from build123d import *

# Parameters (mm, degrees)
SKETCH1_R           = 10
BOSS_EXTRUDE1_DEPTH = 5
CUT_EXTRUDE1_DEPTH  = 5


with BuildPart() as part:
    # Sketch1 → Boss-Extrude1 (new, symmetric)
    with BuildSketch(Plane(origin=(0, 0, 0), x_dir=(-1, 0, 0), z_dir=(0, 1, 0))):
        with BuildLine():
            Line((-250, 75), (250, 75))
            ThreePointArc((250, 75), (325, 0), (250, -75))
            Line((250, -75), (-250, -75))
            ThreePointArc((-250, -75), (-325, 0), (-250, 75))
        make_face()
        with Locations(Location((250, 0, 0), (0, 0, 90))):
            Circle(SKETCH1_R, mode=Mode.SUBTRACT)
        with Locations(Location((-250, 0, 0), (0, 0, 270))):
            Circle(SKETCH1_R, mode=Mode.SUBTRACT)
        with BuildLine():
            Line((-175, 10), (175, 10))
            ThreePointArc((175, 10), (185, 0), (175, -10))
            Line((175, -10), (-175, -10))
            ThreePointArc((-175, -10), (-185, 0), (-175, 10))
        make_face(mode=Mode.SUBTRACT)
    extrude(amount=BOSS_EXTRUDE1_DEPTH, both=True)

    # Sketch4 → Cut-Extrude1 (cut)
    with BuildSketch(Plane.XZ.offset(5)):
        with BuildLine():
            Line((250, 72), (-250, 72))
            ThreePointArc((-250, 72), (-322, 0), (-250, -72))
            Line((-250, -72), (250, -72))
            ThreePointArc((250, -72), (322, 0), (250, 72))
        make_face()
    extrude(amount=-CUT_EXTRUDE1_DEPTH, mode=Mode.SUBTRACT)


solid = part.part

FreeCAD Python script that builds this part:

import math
import FreeCAD as App
import Part
import Sketcher
from FreeCAD import Vector

doc = App.newDocument("Part")
body = doc.addObject("PartDesign::Body", "Body")

# Sketch on XZ plane
sketch1 = body.newObject("Sketcher::SketchObject", "Sketch")
sketch1.AttachmentSupport = (doc.getObject("XZ_Plane"), [""])
sketch1.MapMode = "FlatFace"
sketch1.addGeometry([
    Part.LineSegment(Vector(-250, 75, 0), Vector(250, 75, 0)),  # 0
    Part.ArcOfCircle(Part.Circle(Vector(250, 0, 0), Vector(0, 0, 1), 75), math.radians(-90), math.radians(90)),  # 1
    Part.LineSegment(Vector(250, -75, 0), Vector(-250, -75, 0)),  # 2
    Part.ArcOfCircle(Part.Circle(Vector(-250, 0, 0), Vector(0, 0, 1), 75), math.radians(90), math.radians(270)),  # 3
    Part.Circle(Vector(-250, 0, 0), Vector(0, 0, 1), 10),  # 4
    Part.LineSegment(Vector(175, 10, 0), Vector(-175, 10, 0)),  # 5
    Part.ArcOfCircle(Part.Circle(Vector(-175, 0, 0), Vector(0, 0, 1), 10), math.radians(90), math.radians(270)),  # 6
    Part.LineSegment(Vector(-175, -10, 0), Vector(175, -10, 0)),  # 7
    Part.ArcOfCircle(Part.Circle(Vector(175, 0, 0), Vector(0, 0, 1), 10), math.radians(-90), math.radians(90)),  # 8
    Part.Circle(Vector(250, 0, 0), Vector(0, 0, 1), 10),  # 9
], False)
sketch1.addConstraint([
    Sketcher.Constraint("Tangent", 0, 2, 1, 2),
    Sketcher.Constraint("Tangent", 1, 1, 2, 1),
    Sketcher.Constraint("Tangent", 2, 2, 3, 2),
    Sketcher.Constraint("Tangent", 3, 1, 0, 1),
    Sketcher.Constraint("Tangent", 5, 2, 6, 1),
    Sketcher.Constraint("Tangent", 6, 2, 7, 1),
    Sketcher.Constraint("Tangent", 7, 2, 8, 1),
    Sketcher.Constraint("Tangent", 8, 2, 5, 1),
    Sketcher.Constraint("Horizontal", 0),
    Sketcher.Constraint("Horizontal", 2),
    Sketcher.Constraint("Horizontal", 5),
    Sketcher.Constraint("Horizontal", 7),
    Sketcher.Constraint("Coincident", 4, 3, 3, 3),
    Sketcher.Constraint("Coincident", 9, 3, 1, 3),
    Sketcher.Constraint("Equal", 4, 6),
    Sketcher.Constraint("Equal", 8, 9),
    Sketcher.Constraint("Symmetric", 1, 3, 3, 3, -1, 1),
    Sketcher.Constraint("Symmetric", 6, 3, 8, 3, -1, 1),
    Sketcher.Constraint("Diameter", 4, 20.0),
    Sketcher.Constraint("Radius", 1, 75.0),
    Sketcher.Constraint("DistanceX", 0, 1, 0, 2, 500.0),
    Sketcher.Constraint("DistanceX", 5, 2, 5, 1, 350.0),
])
pad1 = body.newObject("PartDesign::Pad", "Pad")
pad1.Profile = sketch1
pad1.Length = 10
pad1.Midplane = True

# Sketch on XZ plane
sketch2 = body.newObject("Sketcher::SketchObject", "Sketch001")
sketch2.AttachmentSupport = (doc.getObject("XZ_Plane"), [""])
sketch2.MapMode = "FlatFace"
sketch2.AttachmentOffset = App.Placement(Vector(0, 0, 5), App.Rotation())
sketch2.addGeometry([
    Part.LineSegment(Vector(250, 72, 0), Vector(-250, 72, 0)),
    Part.ArcOfCircle(Part.Circle(Vector(-250, 0, 0), Vector(0, 0, 1), 72), math.radians(90), math.radians(270)),
    Part.LineSegment(Vector(-250, -72, 0), Vector(250, -72, 0)),
    Part.ArcOfCircle(Part.Circle(Vector(250, 0, 0), Vector(0, 0, 1), 72), math.radians(-90), math.radians(90)),
], False)
sketch2.addConstraint([
    Sketcher.Constraint("Tangent", 0, 2, 1, 1),
    Sketcher.Constraint("Tangent", 1, 2, 2, 1),
    Sketcher.Constraint("Tangent", 2, 2, 3, 1),
    Sketcher.Constraint("Tangent", 3, 2, 0, 1),
    Sketcher.Constraint("Horizontal", 0),
    Sketcher.Constraint("Horizontal", 2),
    Sketcher.Constraint("Symmetric", 1, 3, 3, 3, -1, 1),
    Sketcher.Constraint("Radius", 1, 72.0),
    Sketcher.Constraint("DistanceX", 0, 2, 0, 1, 500.0),
])
pocket1 = body.newObject("PartDesign::Pocket", "Pocket")
pocket1.Profile = sketch2
pocket1.Length = 5

doc.recompute()
